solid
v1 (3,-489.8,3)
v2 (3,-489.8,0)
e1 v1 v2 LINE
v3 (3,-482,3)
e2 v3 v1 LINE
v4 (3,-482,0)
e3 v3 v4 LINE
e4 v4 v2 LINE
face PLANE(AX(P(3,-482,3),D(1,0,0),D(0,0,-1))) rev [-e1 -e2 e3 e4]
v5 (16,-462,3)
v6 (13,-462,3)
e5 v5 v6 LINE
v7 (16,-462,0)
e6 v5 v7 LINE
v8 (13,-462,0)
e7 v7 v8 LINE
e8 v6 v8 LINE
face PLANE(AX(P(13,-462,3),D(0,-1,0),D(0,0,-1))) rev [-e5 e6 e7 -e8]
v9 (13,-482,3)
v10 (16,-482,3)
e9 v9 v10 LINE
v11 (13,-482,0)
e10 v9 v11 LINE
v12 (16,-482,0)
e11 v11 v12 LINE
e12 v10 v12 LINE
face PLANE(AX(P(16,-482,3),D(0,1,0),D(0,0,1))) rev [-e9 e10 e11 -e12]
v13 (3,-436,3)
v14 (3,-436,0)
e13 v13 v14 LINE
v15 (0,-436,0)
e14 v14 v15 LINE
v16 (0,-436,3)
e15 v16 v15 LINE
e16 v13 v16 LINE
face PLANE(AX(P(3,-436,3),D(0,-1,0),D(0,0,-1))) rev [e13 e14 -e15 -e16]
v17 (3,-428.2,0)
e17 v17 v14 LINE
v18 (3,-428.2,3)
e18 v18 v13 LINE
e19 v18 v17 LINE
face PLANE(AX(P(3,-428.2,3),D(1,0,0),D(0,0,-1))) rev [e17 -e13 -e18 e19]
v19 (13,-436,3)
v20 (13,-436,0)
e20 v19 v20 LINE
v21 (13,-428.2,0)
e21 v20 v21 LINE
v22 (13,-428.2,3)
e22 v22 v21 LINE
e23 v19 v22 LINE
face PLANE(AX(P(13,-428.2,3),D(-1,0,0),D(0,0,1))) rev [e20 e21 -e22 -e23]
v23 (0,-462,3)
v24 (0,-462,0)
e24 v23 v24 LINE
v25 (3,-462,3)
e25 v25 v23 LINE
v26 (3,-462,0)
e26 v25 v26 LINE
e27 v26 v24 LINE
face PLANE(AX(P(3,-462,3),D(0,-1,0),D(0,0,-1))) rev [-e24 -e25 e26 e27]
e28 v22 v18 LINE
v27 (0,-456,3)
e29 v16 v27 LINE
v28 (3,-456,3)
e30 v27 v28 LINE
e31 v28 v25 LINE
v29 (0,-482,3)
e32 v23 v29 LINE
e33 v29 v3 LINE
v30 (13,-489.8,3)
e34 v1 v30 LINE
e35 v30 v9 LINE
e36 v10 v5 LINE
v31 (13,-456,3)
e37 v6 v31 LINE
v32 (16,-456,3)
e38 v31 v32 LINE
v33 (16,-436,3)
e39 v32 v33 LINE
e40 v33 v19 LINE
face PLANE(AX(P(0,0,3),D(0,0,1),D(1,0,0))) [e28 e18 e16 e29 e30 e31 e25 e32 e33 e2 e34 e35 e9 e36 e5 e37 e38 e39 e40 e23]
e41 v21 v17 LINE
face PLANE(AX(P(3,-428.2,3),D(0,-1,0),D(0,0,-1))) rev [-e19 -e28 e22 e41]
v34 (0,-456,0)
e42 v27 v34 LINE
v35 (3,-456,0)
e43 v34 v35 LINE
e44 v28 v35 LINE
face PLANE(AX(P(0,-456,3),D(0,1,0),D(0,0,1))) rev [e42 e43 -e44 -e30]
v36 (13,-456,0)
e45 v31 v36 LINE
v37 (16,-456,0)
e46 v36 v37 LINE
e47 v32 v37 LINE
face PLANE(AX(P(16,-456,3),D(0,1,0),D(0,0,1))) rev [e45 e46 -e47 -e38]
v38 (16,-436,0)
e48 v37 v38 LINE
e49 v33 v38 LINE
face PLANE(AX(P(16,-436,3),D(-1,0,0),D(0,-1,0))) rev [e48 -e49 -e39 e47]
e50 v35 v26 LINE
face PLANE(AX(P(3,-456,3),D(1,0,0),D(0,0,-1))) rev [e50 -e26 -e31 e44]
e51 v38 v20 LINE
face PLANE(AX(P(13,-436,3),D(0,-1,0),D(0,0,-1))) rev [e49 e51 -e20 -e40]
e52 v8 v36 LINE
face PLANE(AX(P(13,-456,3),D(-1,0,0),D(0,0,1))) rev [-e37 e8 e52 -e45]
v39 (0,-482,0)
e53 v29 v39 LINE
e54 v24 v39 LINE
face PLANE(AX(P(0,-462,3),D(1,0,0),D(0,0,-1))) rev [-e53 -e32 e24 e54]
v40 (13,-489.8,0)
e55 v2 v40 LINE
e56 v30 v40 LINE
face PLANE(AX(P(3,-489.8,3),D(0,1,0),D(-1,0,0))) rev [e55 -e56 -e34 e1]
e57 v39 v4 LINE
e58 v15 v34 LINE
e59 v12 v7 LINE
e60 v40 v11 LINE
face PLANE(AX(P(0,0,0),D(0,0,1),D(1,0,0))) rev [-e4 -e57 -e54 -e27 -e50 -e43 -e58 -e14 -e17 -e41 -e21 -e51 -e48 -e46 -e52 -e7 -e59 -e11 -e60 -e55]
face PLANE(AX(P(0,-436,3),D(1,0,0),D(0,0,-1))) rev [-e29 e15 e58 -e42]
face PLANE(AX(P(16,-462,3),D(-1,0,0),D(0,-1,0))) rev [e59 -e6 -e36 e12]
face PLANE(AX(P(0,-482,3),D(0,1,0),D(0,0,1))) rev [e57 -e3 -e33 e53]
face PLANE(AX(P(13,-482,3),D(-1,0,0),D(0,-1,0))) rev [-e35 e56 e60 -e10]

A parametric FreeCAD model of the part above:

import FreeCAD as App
import Part
import Sketcher
from FreeCAD import Vector
Q = App.Units.Quantity

doc = App.newDocument("Part")
params = doc.addObject("Spreadsheet::Sheet", "Params")
for row, (alias, value) in enumerate([
    ("sketch1_width", "10 mm"),
    ("sketch1_width2", "3 mm"),
    ("sketch1_height", "20 mm"),
    ("sketch1_height2", "6 mm"),
    ("sketch1_height3", "7.8 mm"),
    ("pad1_length", "3 mm"),
], start=1):
    params.set(f"A{row}", alias)
    params.set(f"B{row}", "=" + value)
    params.setAlias(f"B{row}", alias)

body = doc.addObject("PartDesign::Body", "Body")

sketch1 = doc.addObject("Sketcher::SketchObject", "Sketch")
body.addObject(sketch1)
sketch1.AttachmentSupport = (doc.XY_Plane, [""])
sketch1.MapMode = "FlatFace"
sketch1.addGeometry(Part.LineSegment(Vector(13, -428.2, 0), Vector(3, -428.2, 0)), False)
sketch1.addGeometry(Part.LineSegment(Vector(3, -428.2, 0), Vector(3, -436, 0)), False)
sketch1.addGeometry(Part.LineSegment(Vector(3, -436, 0), Vector(0, -436, 0)), False)
sketch1.addGeometry(Part.LineSegment(Vector(0, -436, 0), Vector(0, -456, 0)), False)
sketch1.addGeometry(Part.LineSegment(Vector(0, -456, 0), Vector(3, -456, 0)), False)
sketch1.addGeometry(Part.LineSegment(Vector(3, -456, 0), Vector(3, -462, 0)), False)
sketch1.addGeometry(Part.LineSegment(Vector(3, -462, 0), Vector(0, -462, 0)), False)
sketch1.addGeometry(Part.LineSegment(Vector(0, -462, 0), Vector(0, -482, 0)), False)
sketch1.addGeometry(Part.LineSegment(Vector(0, -482, 0), Vector(3, -482, 0)), False)
sketch1.addGeometry(Part.LineSegment(Vector(3, -482, 0), Vector(3, -489.8, 0)), False)
sketch1.addGeometry(Part.LineSegment(Vector(3, -489.8, 0), Vector(13, -489.8, 0)), False)
sketch1.addGeometry(Part.LineSegment(Vector(13, -489.8, 0), Vector(13, -482, 0)), False)
sketch1.addGeometry(Part.LineSegment(Vector(13, -482, 0), Vector(16, -482, 0)), False)
sketch1.addGeometry(Part.LineSegment(Vector(16, -482, 0), Vector(16, -462, 0)), False)
sketch1.addGeometry(Part.LineSegment(Vector(16, -462, 0), Vector(13, -462, 0)), False)
sketch1.addGeometry(Part.LineSegment(Vector(13, -462, 0), Vector(13, -456, 0)), False)
sketch1.addGeometry(Part.LineSegment(Vector(13, -456, 0), Vector(16, -456, 0)), False)
sketch1.addGeometry(Part.LineSegment(Vector(16, -456, 0), Vector(16, -436, 0)), False)
sketch1.addGeometry(Part.LineSegment(Vector(16, -436, 0), Vector(13, -436, 0)), False)
sketch1.addGeometry(Part.LineSegment(Vector(13, -436, 0), Vector(13, -428.2, 0)), False)
sketch1.addConstraint(Sketcher.Constraint("Coincident", 0, 2, 1, 1))
sketch1.addConstraint(Sketcher.Constraint("Coincident", 1, 2, 2, 1))
sketch1.addConstraint(Sketcher.Constraint("Coincident", 2, 2, 3, 1))
sketch1.addConstraint(Sketcher.Constraint("Coincident", 3, 2, 4, 1))
sketch1.addConstraint(Sketcher.Constraint("Coincident", 4, 2, 5, 1))
sketch1.addConstraint(Sketcher.Constraint("Coincident", 5, 2, 6, 1))
sketch1.addConstraint(Sketcher.Constraint("Coincident", 6, 2, 7, 1))
sketch1.addConstraint(Sketcher.Constraint("Coincident", 7, 2, 8, 1))
sketch1.addConstraint(Sketcher.Constraint("Coincident", 8, 2, 9, 1))
sketch1.addConstraint(Sketcher.Constraint("Coincident", 9, 2, 10, 1))
sketch1.addConstraint(Sketcher.Constraint("Coincident", 10, 2, 11, 1))
sketch1.addConstraint(Sketcher.Constraint("Coincident", 11, 2, 12, 1))
sketch1.addConstraint(Sketcher.Constraint("Coincident", 12, 2, 13, 1))
sketch1.addConstraint(Sketcher.Constraint("Coincident", 13, 2, 14, 1))
sketch1.addConstraint(Sketcher.Constraint("Coincident", 14, 2, 15, 1))
sketch1.addConstraint(Sketcher.Constraint("Coincident", 15, 2, 16, 1))
sketch1.addConstraint(Sketcher.Constraint("Coincident", 16, 2, 17, 1))
sketch1.addConstraint(Sketcher.Constraint("Coincident", 17, 2, 18, 1))
sketch1.addConstraint(Sketcher.Constraint("Coincident", 18, 2, 19, 1))
sketch1.addConstraint(Sketcher.Constraint("Coincident", 19, 2, 0, 1))
sketch1.addConstraint(Sketcher.Constraint("Horizontal", 0))
sketch1.addConstraint(Sketcher.Constraint("Vertical", 1))
sketch1.addConstraint(Sketcher.Constraint("Horizontal", 2))
sketch1.addConstraint(Sketcher.Constraint("Vertical", 3))
sketch1.addConstraint(Sketcher.Constraint("Horizontal", 4))
sketch1.addConstraint(Sketcher.Constraint("Vertical", 5))
sketch1.addConstraint(Sketcher.Constraint("Horizontal", 6))
sketch1.addConstraint(Sketcher.Constraint("Vertical", 7))
sketch1.addConstraint(Sketcher.Constraint("Horizontal", 8))
sketch1.addConstraint(Sketcher.Constraint("Vertical", 9))
sketch1.addConstraint(Sketcher.Constraint("Horizontal", 10))
sketch1.addConstraint(Sketcher.Constraint("Vertical", 11))
sketch1.addConstraint(Sketcher.Constraint("Horizontal", 12))
sketch1.addConstraint(Sketcher.Constraint("Vertical", 13))
sketch1.addConstraint(Sketcher.Constraint("Horizontal", 14))
sketch1.addConstraint(Sketcher.Constraint("Vertical", 15))
sketch1.addConstraint(Sketcher.Constraint("Horizontal", 16))
sketch1.addConstraint(Sketcher.Constraint("Vertical", 17))
sketch1.addConstraint(Sketcher.Constraint("Horizontal", 18))
sketch1.addConstraint(Sketcher.Constraint("Vertical", 19))
sketch1.addConstraint(Sketcher.Constraint("PointOnObject", 2, 2, -2))
sketch1.addConstraint(Sketcher.Constraint("PointOnObject", 6, 2, -2))
sketch1.addConstraint(Sketcher.Constraint("Horizontal", 8, 2, 11, 2))
sketch1.addConstraint(Sketcher.Constraint("Horizontal", 6, 2, 13, 2))
sketch1.addConstraint(Sketcher.Constraint("Horizontal", 4, 2, 15, 2))
sketch1.addConstraint(Sketcher.Constraint("Horizontal", 2, 2, 17, 2))
sketch1.addConstraint(Sketcher.Constraint("Vertical", 1, 2, 4, 2))
sketch1.addConstraint(Sketcher.Constraint("Vertical", 5, 2, 8, 2))
sketch1.addConstraint(Sketcher.Constraint("Vertical", 11, 2, 14, 2))
sketch1.addConstraint(Sketcher.Constraint("Vertical", 13, 2, 16, 2))
sketch1.addConstraint(Sketcher.Constraint("Vertical", 15, 2, 18, 2))
sketch1.addConstraint(Sketcher.Constraint("Equal", 8, 12))
sketch1.addConstraint(Sketcher.Constraint("Equal", 3, 7))
sketch1.addConstraint(Sketcher.Constraint("Equal", 1, 9))
sketch1.addConstraint(Sketcher.Constraint("DistanceX", 0, 2, 0, 1, Q("10 mm")))
sketch1.addConstraint(Sketcher.Constraint("DistanceX", 2, 2, 2, 1, Q("3 mm")))
sketch1.addConstraint(Sketcher.Constraint("DistanceY", 3, 2, 3, 1, Q("20 mm")))
sketch1.addConstraint(Sketcher.Constraint("DistanceY", 5, 2, 5, 1, Q("6 mm")))
sketch1.addConstraint(Sketcher.Constraint("DistanceY", 1, 2, 1, 1, Q("7.8 mm")))
sketch1.addConstraint(Sketcher.Constraint("DistanceY", 1, 2, -1, 1, Q("436 mm")))
sketch1.setExpression("Constraints[54]", "Params.sketch1_width")
sketch1.setExpression("Constraints[55]", "Params.sketch1_width2")
sketch1.setExpression("Constraints[56]", "Params.sketch1_height")
sketch1.setExpression("Constraints[57]", "Params.sketch1_height2")
sketch1.setExpression("Constraints[58]", "Params.sketch1_height3")
pad1 = doc.addObject("PartDesign::Pad", "Pad")
body.addObject(pad1)
pad1.Profile = sketch1
pad1.setExpression("Length", "Params.pad1_length")

doc.recompute()
